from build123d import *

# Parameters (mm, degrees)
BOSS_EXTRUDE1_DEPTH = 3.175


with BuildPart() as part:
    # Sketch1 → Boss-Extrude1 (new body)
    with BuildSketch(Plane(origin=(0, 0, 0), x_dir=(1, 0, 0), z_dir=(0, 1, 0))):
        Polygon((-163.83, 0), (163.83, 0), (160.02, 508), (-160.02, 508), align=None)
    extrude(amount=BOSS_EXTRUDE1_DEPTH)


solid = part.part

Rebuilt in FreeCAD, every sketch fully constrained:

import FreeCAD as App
import Part
import Sketcher

V = App.Vector
Q = App.Units.Quantity


def add_polygon(sketch, points):
    """Adds a closed chain of lines whose ends are joined by coincident constraints."""
    first, n = sketch.GeometryCount, len(points)
    for a, b in zip(points, points[1:] + points[:1]):
        sketch.addGeometry(Part.LineSegment(App.Vector(*a, 0), App.Vector(*b, 0)), False)
    for i in range(n):
        sketch.addConstraint(Sketcher.Constraint("Coincident", first + i, 2, first + (i + 1) % n, 1))

doc = App.newDocument("Part")
body = doc.addObject("PartDesign::Body", "Body")

# Sketch on XZ plane
sketch1 = body.newObject("Sketcher::SketchObject", "Sketch")
sketch1.AttachmentSupport = (doc.getObject("XZ_Plane"), [""])
sketch1.MapMode = "FlatFace"
add_polygon(sketch1, [(-164, 0), (164, 0), (160, -508), (-160, -508)])  # lines 0-3
sketch1.addConstraint([
    Sketcher.Constraint("Horizontal", 0),
    Sketcher.Constraint("Horizontal", 2),
    Sketcher.Constraint("Symmetric", 0, 2, 3, 2, -1, 1),
    Sketcher.Constraint("Equal", 1, 3),
    Sketcher.Constraint("DistanceX", 0, 1, 0, 2, Q("12.9 in")),
    Sketcher.Constraint("DistanceX", 2, 2, 2, 1, Q("12.6 in")),
    Sketcher.Constraint("DistanceY", 1, 2, -1, 1, Q("20 in")),
])
pad1 = body.newObject("PartDesign::Pad", "Pad")
pad1.Profile = sketch1
pad1.Length = Q("0.125 in")
pad1.Reversed = True

doc.recompute()
